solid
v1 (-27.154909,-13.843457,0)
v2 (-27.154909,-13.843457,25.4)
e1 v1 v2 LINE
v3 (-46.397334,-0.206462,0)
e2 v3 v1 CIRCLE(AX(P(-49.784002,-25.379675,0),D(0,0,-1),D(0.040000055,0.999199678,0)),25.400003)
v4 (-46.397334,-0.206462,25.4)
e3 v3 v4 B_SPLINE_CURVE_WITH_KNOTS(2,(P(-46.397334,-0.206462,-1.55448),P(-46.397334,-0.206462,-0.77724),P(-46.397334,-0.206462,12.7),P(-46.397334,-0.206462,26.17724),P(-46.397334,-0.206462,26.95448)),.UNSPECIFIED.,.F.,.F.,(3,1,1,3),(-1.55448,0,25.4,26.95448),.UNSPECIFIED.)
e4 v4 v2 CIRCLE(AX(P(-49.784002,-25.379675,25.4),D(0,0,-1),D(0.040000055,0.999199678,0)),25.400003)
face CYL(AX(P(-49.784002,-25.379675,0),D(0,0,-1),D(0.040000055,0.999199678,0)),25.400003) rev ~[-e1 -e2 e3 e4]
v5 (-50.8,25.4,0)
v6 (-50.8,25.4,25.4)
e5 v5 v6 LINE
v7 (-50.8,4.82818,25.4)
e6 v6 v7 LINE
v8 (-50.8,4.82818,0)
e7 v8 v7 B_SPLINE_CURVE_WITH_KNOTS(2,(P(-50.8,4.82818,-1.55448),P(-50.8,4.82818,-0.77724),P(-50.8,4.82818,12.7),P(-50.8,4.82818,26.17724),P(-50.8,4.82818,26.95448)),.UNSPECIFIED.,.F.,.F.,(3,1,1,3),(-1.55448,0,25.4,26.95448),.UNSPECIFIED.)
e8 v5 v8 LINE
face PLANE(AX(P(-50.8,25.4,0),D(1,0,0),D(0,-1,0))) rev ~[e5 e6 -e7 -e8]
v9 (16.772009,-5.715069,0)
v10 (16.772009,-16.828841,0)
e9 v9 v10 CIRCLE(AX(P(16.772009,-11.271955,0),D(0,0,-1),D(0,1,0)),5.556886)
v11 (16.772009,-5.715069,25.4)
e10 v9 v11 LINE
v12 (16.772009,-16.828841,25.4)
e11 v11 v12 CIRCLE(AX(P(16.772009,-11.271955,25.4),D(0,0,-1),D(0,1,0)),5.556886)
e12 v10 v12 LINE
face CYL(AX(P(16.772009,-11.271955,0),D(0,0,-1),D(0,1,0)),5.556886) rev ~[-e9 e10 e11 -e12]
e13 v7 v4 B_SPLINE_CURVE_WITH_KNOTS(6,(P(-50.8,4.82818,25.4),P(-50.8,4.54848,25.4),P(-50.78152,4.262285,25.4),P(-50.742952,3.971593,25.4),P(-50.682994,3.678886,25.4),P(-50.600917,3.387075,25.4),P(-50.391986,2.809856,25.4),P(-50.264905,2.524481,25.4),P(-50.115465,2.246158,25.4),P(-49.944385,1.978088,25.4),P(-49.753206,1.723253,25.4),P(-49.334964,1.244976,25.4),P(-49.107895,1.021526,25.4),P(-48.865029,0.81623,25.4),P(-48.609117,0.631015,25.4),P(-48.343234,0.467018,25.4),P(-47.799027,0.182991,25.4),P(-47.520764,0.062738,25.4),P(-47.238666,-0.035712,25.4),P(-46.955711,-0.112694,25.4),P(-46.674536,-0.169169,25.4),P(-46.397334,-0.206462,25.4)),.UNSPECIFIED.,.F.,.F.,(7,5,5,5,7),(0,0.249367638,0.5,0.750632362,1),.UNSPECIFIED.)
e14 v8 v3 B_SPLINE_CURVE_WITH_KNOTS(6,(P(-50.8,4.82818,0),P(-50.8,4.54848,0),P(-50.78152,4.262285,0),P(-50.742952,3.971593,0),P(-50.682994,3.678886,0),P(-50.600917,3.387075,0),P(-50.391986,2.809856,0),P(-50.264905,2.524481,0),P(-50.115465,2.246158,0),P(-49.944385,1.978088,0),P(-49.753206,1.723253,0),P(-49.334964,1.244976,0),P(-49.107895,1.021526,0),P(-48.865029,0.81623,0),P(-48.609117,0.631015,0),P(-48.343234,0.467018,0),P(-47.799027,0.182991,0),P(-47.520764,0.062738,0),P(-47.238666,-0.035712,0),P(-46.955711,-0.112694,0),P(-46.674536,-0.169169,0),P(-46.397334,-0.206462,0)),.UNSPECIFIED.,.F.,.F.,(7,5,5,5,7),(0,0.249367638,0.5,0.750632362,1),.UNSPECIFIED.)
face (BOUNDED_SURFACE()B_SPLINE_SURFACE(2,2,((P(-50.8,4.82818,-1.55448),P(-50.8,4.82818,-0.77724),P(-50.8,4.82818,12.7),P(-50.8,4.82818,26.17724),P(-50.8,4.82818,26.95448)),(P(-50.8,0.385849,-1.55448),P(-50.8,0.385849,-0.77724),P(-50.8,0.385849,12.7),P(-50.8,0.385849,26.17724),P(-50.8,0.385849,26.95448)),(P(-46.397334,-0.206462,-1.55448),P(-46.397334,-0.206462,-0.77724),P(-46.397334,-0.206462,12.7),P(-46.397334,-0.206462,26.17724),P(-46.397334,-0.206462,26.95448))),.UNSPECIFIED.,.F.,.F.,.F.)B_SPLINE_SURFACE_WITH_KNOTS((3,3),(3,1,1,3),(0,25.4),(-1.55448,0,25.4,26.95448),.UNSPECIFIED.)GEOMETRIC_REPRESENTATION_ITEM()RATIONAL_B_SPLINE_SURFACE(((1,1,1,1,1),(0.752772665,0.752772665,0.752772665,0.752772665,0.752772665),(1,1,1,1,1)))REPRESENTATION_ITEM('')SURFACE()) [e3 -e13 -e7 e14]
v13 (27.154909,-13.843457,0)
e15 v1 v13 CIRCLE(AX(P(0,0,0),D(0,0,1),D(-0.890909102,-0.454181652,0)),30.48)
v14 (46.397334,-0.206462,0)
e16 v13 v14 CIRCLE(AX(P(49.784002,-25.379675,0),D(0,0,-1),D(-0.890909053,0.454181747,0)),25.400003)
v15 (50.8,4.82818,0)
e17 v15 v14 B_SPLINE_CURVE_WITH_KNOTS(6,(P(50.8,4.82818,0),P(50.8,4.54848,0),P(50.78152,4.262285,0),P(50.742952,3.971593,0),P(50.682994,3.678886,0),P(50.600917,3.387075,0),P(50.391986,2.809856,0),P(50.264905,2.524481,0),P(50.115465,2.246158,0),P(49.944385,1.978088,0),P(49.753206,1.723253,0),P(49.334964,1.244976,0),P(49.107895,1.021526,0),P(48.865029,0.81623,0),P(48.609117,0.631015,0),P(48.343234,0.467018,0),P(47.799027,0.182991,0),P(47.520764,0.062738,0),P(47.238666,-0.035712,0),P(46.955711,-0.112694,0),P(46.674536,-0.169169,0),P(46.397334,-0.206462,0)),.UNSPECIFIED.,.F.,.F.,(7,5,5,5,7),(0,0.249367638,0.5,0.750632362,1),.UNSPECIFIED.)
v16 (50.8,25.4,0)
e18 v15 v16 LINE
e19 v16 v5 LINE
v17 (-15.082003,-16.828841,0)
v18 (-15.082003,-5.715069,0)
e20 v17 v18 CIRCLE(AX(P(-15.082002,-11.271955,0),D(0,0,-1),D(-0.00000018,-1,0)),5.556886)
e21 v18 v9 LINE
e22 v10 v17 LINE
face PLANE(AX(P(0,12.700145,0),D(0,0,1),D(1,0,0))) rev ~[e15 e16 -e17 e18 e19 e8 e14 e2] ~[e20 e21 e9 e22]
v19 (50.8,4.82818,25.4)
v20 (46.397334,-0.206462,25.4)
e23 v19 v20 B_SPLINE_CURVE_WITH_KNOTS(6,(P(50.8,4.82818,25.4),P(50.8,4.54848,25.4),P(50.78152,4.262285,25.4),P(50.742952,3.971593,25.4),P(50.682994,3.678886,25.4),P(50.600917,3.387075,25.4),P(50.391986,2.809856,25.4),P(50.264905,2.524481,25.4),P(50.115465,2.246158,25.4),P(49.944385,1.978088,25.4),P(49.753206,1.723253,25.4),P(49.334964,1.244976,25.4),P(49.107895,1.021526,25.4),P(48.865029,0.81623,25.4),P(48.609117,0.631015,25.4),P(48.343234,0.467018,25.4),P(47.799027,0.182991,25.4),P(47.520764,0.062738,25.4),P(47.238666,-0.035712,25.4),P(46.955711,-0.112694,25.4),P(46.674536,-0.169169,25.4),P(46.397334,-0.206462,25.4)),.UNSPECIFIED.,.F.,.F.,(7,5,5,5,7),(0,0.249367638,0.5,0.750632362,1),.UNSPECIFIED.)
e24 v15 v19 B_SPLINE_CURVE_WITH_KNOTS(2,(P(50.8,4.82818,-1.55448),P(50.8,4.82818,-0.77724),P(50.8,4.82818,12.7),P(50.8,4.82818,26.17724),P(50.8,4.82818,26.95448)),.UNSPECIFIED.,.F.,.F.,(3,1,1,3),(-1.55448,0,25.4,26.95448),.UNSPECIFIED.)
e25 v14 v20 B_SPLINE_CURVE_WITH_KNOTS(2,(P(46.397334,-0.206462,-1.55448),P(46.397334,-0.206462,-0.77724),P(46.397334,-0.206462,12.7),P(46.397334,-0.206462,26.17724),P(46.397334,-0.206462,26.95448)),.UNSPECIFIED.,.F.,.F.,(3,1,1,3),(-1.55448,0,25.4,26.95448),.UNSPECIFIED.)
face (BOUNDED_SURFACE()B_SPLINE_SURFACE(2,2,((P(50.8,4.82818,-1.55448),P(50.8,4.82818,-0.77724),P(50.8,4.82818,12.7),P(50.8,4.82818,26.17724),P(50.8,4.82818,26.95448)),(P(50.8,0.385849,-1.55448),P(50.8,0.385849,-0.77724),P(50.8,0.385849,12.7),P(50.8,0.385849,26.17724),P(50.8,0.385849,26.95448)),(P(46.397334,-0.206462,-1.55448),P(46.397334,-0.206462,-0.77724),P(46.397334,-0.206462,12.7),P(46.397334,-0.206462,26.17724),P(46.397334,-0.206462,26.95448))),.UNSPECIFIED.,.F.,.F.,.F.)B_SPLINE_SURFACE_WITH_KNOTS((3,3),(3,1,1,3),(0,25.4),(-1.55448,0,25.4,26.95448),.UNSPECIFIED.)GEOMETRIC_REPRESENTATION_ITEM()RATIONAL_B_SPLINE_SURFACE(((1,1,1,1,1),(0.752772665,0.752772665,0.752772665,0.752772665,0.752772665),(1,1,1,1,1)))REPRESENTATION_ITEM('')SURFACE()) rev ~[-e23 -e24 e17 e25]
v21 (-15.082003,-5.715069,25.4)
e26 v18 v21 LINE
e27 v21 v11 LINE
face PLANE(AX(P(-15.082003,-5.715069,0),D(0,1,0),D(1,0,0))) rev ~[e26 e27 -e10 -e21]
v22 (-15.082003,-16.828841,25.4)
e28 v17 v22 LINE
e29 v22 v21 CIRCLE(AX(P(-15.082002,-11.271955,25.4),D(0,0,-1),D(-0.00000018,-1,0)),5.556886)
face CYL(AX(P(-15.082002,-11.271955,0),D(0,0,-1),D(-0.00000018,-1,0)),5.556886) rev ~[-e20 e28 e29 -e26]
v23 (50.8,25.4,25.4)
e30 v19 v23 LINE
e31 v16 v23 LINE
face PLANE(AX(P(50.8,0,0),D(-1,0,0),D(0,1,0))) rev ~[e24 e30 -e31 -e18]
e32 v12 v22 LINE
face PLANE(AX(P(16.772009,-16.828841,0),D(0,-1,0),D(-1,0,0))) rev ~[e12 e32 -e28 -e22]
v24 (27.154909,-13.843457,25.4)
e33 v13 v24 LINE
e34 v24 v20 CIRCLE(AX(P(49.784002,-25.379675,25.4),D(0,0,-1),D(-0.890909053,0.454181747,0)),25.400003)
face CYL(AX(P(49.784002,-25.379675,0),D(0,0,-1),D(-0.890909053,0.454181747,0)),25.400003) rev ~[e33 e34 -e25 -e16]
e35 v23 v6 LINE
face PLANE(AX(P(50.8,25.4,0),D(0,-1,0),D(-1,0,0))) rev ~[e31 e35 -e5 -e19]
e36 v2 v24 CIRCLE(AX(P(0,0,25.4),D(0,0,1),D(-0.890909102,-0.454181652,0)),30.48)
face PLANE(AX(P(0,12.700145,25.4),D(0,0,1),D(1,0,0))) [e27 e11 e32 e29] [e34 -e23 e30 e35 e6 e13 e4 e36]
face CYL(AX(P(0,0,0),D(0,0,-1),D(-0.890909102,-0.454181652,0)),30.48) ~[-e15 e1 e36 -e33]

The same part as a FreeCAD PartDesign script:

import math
import FreeCAD as App
import Part
import Sketcher
Q = App.Units.Quantity


def edges_at(feature, points):
    """Names of the edges that pass closest to the given points."""
    edges = feature.Shape.Edges
    near = lambda p: min(range(len(edges)), key=lambda i: edges[i].distToShape(Part.Vertex(*p))[0])
    return sorted({f"Edge{near(p) + 1}" for p in points})

doc = App.newDocument("Part")
params = doc.addObject("Spreadsheet::Sheet", "Params")
for row, (alias, value) in enumerate([
    ("sketch1_radius", "1.0000001 in"),
    ("sketch1_radius2", "1.2 in"),
    ("sketch1_width", "4 in"),
    ("sketch1_height", "1 in"),
    ("sketch1_width2", "0.08 in"),
    ("pad1_length", "1 in"),
    ("fillet_radius", "0.2 in"),
], start=1):
    params.set(f"A{row}", alias)
    params.set(f"B{row}", "=" + value)
    params.setAlias(f"B{row}", alias)

body = doc.addObject("PartDesign::Body", "Body")

sketch1 = doc.addObject("Sketcher::SketchObject", "Sketch")
body.addObject(sketch1)
sketch1.AttachmentSupport = (doc.XY_Plane, [""])
sketch1.MapMode = "FlatFace"
sketch1.addGeometry([
    Part.LineSegment(App.Vector(50.8, 25.4, 0), App.Vector(-50.8, 25.4, 0)),
    Part.LineSegment(App.Vector(-50.8, 25.4, 0), App.Vector(-50.8, 0, 0)),
    Part.LineSegment(App.Vector(-50.8, 0, 0), App.Vector(-48.768, 0, 0)),
    Part.ArcOfCircle(Part.Circle(App.Vector(-49.784002, -25.379675, 0), App.Vector(0, 0, 1), 25.400003), math.radians(27.012299), math.radians(87.707554)),
    Part.ArcOfCircle(Part.Circle(App.Vector(0, 0, 0), App.Vector(0, 0, 1), 30.48), math.radians(-152.987707), math.radians(-27.012293)),
    Part.ArcOfCircle(Part.Circle(App.Vector(49.784002, -25.379675, 0), App.Vector(0, 0, 1), 25.400003), math.radians(92.292446), math.radians(152.987701)),
    Part.LineSegment(App.Vector(48.768, 0, 0), App.Vector(50.8, 0, 0)),
    Part.LineSegment(App.Vector(50.8, 0, 0), App.Vector(50.8, 25.4, 0)),
    Part.LineSegment(App.Vector(16.772009, -16.828841, 0), App.Vector(-15.082003, -16.828841, 0)),
    Part.ArcOfCircle(Part.Circle(App.Vector(-15.082002, -11.271955, 0), App.Vector(0, 0, 1), 5.556886), math.radians(90.00001), math.radians(269.99999)),
    Part.LineSegment(App.Vector(-15.082003, -5.715069, 0), App.Vector(16.772009, -5.715069, 0)),
    Part.ArcOfCircle(Part.Circle(App.Vector(16.772009, -11.271955, 0), App.Vector(0, 0, 1), 5.556886), math.radians(-90), math.radians(90)),
], False)
sketch1.addConstraint([
    Sketcher.Constraint("Coincident", 0, 2, 1, 1),
    Sketcher.Constraint("Coincident", 1, 2, 2, 1),
    Sketcher.Constraint("Coincident", 2, 2, 3, 2),
    Sketcher.Constraint("Tangent", 3, 1, 4, 1),
    Sketcher.Constraint("Tangent", 4, 2, 5, 2),
    Sketcher.Constraint("Coincident", 5, 1, 6, 1),
    Sketcher.Constraint("Coincident", 6, 2, 7, 1),
    Sketcher.Constraint("Coincident", 7, 2, 0, 1),
    Sketcher.Constraint("Tangent", 8, 2, 9, 2),
    Sketcher.Constraint("Tangent", 9, 1, 10, 1),
    Sketcher.Constraint("Tangent", 10, 2, 11, 2),
    Sketcher.Constraint("Tangent", 11, 1, 8, 1),
    Sketcher.Constraint("Horizontal", 0),
    Sketcher.Constraint("Vertical", 1),
    Sketcher.Constraint("Horizontal", 2),
    Sketcher.Constraint("Horizontal", 6),
    Sketcher.Constraint("Vertical", 7),
    Sketcher.Constraint("Horizontal", 8),
    Sketcher.Constraint("Horizontal", 10),
    Sketcher.Constraint("Coincident", 4, 3, -1, 1),
    Sketcher.Constraint("Equal", 3, 5),
    Sketcher.Constraint("Symmetric", 2, 2, 5, 1, -1, 1),
    Sketcher.Constraint("Symmetric", 1, 2, 6, 2, -2),
    Sketcher.Constraint("Radius", 3, Q("1.0000001 in")),
    Sketcher.Constraint("Radius", 4, Q("1.2 in")),
    Sketcher.Constraint("DistanceX", 0, 2, 0, 1, Q("4 in")),
    Sketcher.Constraint("DistanceY", 1, 2, 1, 1, Q("1 in")),
    Sketcher.Constraint("DistanceX", 2, 1, 2, 2, Q("0.08 in")),
    Sketcher.Constraint("Radius", 9, Q("5.556886 mm")),
    Sketcher.Constraint("DistanceX", 9, 3, -1, 1, Q("15.082002 mm")),
    Sketcher.Constraint("DistanceX", 11, 3, 4, 2, Q("10.3829 mm")),
    Sketcher.Constraint("DistanceY", 4, 2, 11, 3, Q("2.571502 mm")),
])
sketch1.setExpression("Constraints[23]", "Params.sketch1_radius")
sketch1.setExpression("Constraints[24]", "Params.sketch1_radius2")
sketch1.setExpression("Constraints[25]", "Params.sketch1_width")
sketch1.setExpression("Constraints[26]", "Params.sketch1_height")
sketch1.setExpression("Constraints[27]", "Params.sketch1_width2")
pad1 = doc.addObject("PartDesign::Pad", "Pad")
body.addObject(pad1)
pad1.Profile = sketch1
pad1.setExpression("Length", "Params.pad1_length")
doc.recompute()

fillet = doc.addObject("PartDesign::Fillet", "Fillet")
body.addObject(fillet)
fillet.Base = (pad1, edges_at(pad1, [(-50.8, 0, 12.7), (50.8, 0, 12.7)]))
fillet.setExpression("Radius", "Params.fillet_radius")

doc.recompute()
